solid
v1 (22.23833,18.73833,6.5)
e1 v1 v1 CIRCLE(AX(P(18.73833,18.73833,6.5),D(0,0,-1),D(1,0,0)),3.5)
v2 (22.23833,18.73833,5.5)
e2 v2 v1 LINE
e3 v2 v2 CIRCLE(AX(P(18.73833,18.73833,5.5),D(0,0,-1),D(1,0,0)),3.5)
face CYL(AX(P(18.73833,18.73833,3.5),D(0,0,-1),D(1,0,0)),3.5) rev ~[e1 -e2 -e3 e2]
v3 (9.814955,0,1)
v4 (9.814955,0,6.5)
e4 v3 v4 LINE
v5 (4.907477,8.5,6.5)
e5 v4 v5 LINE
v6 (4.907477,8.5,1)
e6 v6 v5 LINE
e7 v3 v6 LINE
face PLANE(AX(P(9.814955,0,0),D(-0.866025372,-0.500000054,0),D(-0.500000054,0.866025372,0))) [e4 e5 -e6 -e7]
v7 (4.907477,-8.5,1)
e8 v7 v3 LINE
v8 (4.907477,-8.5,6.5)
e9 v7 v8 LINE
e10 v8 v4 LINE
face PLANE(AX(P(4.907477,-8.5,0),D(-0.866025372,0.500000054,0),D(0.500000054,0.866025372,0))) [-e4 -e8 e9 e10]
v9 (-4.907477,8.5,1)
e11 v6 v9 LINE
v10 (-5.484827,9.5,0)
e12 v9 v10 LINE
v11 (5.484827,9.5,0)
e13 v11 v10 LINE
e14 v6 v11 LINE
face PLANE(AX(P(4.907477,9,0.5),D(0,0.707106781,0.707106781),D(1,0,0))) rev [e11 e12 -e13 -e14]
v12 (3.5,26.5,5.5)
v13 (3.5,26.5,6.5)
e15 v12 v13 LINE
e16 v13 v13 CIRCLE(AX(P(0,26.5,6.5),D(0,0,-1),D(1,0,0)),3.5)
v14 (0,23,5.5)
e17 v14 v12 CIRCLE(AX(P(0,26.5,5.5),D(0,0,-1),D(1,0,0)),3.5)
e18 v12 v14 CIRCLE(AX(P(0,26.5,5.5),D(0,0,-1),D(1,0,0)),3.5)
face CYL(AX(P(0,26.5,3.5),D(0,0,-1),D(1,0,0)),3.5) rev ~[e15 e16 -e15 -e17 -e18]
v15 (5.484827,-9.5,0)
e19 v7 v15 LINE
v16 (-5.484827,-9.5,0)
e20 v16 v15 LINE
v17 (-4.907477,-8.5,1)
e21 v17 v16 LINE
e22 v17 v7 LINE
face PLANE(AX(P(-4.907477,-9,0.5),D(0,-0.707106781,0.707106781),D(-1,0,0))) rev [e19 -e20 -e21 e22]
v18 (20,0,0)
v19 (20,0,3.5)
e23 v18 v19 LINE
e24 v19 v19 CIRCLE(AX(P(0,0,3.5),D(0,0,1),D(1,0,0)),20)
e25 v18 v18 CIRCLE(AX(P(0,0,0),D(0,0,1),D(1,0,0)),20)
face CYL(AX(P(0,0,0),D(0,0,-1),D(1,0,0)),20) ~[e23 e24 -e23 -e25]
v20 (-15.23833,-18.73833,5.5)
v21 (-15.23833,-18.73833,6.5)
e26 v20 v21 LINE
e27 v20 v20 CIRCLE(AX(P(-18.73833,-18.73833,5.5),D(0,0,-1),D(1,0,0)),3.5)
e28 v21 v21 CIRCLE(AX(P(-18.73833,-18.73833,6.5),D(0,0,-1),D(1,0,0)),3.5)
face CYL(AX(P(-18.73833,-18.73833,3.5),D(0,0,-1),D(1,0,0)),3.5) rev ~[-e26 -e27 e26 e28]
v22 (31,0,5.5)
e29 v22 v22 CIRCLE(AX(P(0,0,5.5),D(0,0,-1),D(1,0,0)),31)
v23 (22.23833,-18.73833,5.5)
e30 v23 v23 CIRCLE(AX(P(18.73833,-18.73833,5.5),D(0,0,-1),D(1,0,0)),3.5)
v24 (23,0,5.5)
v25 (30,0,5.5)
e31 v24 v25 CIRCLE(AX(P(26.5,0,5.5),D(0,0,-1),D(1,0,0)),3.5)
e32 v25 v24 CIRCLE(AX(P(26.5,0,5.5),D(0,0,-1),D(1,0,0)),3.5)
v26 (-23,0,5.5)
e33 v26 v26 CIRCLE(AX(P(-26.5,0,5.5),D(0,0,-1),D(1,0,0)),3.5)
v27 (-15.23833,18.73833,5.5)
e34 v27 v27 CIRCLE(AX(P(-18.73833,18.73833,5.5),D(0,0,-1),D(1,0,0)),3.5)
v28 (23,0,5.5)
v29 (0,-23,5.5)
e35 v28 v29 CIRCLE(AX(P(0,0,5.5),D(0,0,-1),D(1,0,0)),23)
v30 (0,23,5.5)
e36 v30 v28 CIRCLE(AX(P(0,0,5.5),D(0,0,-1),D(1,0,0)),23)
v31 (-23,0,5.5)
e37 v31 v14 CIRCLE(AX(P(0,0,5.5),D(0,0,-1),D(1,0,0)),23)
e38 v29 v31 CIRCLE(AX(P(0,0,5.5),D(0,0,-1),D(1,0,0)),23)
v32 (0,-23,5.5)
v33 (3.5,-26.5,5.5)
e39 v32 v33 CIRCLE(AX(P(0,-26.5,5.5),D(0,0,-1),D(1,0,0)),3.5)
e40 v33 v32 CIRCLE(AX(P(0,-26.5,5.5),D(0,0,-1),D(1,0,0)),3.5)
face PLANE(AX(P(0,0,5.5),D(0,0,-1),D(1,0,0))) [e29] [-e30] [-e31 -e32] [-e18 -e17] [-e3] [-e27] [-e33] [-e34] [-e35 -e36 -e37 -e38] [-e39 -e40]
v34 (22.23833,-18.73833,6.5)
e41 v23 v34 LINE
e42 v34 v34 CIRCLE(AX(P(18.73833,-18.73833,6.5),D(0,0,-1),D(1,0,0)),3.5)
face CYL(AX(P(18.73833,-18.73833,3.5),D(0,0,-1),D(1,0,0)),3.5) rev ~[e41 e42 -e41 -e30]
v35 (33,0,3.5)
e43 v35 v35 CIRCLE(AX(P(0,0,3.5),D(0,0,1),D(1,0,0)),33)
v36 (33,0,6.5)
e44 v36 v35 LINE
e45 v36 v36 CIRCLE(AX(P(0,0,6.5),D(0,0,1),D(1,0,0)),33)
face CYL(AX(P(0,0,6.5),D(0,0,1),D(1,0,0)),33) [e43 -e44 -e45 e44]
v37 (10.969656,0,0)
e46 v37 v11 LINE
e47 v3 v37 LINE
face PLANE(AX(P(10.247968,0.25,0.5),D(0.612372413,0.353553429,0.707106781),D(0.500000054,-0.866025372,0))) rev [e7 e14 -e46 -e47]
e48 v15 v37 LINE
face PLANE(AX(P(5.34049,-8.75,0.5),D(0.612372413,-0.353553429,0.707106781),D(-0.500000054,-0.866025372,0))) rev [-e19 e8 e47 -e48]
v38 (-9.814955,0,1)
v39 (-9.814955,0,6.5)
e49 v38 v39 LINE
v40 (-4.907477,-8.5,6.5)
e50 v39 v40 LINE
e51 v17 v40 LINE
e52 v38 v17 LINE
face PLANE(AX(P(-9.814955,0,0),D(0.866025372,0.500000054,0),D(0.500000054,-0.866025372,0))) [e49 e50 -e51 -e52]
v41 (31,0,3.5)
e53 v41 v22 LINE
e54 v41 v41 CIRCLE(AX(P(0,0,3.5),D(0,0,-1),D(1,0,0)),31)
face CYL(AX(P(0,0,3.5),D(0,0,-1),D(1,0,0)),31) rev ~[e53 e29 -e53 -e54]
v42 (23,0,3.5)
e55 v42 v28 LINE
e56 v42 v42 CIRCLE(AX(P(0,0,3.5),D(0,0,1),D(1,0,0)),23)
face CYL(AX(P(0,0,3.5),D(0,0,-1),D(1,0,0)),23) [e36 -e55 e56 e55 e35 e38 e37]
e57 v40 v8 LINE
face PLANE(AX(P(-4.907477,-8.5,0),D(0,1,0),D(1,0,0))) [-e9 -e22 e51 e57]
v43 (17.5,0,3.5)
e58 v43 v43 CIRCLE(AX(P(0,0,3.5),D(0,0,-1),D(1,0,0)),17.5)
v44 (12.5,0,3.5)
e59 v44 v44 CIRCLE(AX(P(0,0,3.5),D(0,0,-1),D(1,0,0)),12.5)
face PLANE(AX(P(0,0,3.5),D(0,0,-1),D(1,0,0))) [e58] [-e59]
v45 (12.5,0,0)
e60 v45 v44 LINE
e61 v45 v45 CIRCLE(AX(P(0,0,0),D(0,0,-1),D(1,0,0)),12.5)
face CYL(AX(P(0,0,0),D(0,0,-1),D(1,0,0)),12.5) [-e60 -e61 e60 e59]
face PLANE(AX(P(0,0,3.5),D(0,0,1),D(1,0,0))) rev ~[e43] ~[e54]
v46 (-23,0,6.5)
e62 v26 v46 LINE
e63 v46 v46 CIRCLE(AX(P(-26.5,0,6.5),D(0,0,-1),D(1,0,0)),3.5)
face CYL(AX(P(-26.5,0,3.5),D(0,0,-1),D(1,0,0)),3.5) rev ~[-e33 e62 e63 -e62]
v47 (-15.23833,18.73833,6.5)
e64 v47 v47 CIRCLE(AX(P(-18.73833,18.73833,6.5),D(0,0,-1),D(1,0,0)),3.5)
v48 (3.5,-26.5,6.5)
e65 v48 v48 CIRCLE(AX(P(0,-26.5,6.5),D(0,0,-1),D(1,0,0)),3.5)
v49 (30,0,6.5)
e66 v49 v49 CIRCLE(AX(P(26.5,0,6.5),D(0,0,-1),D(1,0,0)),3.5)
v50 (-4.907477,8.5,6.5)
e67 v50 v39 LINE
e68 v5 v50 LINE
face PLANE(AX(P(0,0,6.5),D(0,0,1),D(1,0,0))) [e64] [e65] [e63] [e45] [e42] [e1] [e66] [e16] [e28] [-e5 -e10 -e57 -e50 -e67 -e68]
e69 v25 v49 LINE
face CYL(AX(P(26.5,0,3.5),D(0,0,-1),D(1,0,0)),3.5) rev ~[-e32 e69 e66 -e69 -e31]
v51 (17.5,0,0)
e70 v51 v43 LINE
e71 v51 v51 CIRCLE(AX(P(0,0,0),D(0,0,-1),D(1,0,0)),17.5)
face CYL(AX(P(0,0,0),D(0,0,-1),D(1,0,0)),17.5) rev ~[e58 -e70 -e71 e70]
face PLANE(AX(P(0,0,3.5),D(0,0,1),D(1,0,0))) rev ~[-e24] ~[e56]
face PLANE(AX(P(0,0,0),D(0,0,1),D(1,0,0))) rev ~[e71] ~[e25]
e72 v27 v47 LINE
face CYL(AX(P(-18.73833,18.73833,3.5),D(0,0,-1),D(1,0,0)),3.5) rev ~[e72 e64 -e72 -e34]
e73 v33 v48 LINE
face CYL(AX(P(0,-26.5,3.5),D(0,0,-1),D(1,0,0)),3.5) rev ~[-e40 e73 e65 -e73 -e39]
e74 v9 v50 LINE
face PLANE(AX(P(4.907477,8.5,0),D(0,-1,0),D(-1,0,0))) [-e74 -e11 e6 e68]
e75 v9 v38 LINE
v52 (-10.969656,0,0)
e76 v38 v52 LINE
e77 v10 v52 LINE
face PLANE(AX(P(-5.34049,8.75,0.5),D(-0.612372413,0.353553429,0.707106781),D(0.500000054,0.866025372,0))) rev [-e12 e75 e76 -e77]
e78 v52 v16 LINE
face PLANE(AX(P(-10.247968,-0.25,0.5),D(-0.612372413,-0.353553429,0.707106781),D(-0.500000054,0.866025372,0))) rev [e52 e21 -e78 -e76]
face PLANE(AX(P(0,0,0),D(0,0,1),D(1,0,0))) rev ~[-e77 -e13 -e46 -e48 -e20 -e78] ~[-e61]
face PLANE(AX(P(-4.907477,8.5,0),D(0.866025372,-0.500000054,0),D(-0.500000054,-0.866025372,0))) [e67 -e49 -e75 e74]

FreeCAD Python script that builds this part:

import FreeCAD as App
import Part
import Sketcher
from FreeCAD import Vector
Q = App.Units.Quantity


def edges_at(feature, points):
    """Names of the edges that pass closest to the given points."""
    edges = feature.Shape.Edges
    near = lambda p: min(range(len(edges)), key=lambda i: edges[i].distToShape(Part.Vertex(*p))[0])
    return sorted({f"Edge{near(p) + 1}" for p in points})

doc = App.newDocument("Part")
body = doc.addObject("PartDesign::Body", "Body")

# Sketch on XY plane
sketch1 = doc.addObject("Sketcher::SketchObject", "Sketch")
body.addObject(sketch1)
sketch1.AttachmentSupport = (doc.XY_Plane, [""])
sketch1.MapMode = "FlatFace"
sketch1.addGeometry([
    Part.Circle(Vector(0, 0, 0), Vector(0, 0, 1), 20),  # 0
    Part.LineSegment(Vector(-5, 8, 0), Vector(5, 8, 0)),  # 1
    Part.LineSegment(Vector(5, 8, 0), Vector(10, 0, 0)),  # 2
    Part.LineSegment(Vector(10, 0, 0), Vector(5, -8, 0)),  # 3
    Part.LineSegment(Vector(5, -8, 0), Vector(-5, -8, 0)),  # 4
    Part.LineSegment(Vector(-5, -8, 0), Vector(-10, 0, 0)),  # 5
    Part.LineSegment(Vector(-10, 0, 0), Vector(-5, 8, 0)),  # 6
], False)
sketch1.addConstraint([
    Sketcher.Constraint("Coincident", 1, 2, 2, 1),
    Sketcher.Constraint("Coincident", 2, 2, 3, 1),
    Sketcher.Constraint("Coincident", 3, 2, 4, 1),
    Sketcher.Constraint("Coincident", 4, 2, 5, 1),
    Sketcher.Constraint("Coincident", 5, 2, 6, 1),
    Sketcher.Constraint("Coincident", 6, 2, 1, 1),
    Sketcher.Constraint("Horizontal", 1),
    Sketcher.Constraint("Horizontal", 4),
    Sketcher.Constraint("Coincident", 0, 3, -1, 1),
    Sketcher.Constraint("Symmetric", 1, 2, 4, 2, -1, 1),
    Sketcher.Constraint("Symmetric", 2, 2, 5, 2, -1, 1),
    Sketcher.Constraint("PointOnObject", 2, 2, -1),
    Sketcher.Constraint("Parallel", 3, 6),
    Sketcher.Constraint("Vertical", 1, 2, 3, 2),
    Sketcher.Constraint("Diameter", 0, Q("40 mm")),
    Sketcher.Constraint("Angle", 2, Q("-59.999996 deg")),
    Sketcher.Constraint("DistanceY", 3, 2, 1, 2, Q("17 mm")),
    Sketcher.Constraint("DistanceX", 1, 1, 1, 2, Q("9.814954 mm")),
])
pad1 = doc.addObject("PartDesign::Pad", "Pad")
body.addObject(pad1)
pad1.Profile = sketch1
pad1.Length = 6.5

# Sketch on XY plane
sketch2 = doc.addObject("Sketcher::SketchObject", "Sketch001")
body.addObject(sketch2)
sketch2.AttachmentSupport = (doc.XY_Plane, [""])
sketch2.MapMode = "FlatFace"
sketch2.AttachmentOffset = App.Placement(Vector(0, 0, 6.5), App.Rotation())
sketch2.addGeometry([
    Part.Circle(Vector(0, 0, 0), Vector(0, 0, 1), 33),
    Part.Circle(Vector(0, 0, 0), Vector(0, 0, 1), 20),
], False)
sketch2.addConstraint([
    Sketcher.Constraint("Coincident", 0, 3, -1, 1),
    Sketcher.Constraint("Coincident", 1, 3, -1, 1),
    Sketcher.Constraint("Diameter", 0, Q("66 mm")),
    Sketcher.Constraint("Diameter", 1, Q("40 mm")),
])
pad2 = doc.addObject("PartDesign::Pad", "Pad001")
body.addObject(pad2)
pad2.Profile = sketch2
pad2.Length = 3
pad2.Reversed = True

# Sketch on XY plane
sketch3 = doc.addObject("Sketcher::SketchObject", "Sketch002")
body.addObject(sketch3)
sketch3.AttachmentSupport = (doc.XY_Plane, [""])
sketch3.MapMode = "FlatFace"
sketch3.AttachmentOffset = App.Placement(Vector(0, 0, 3.5), App.Rotation())
sketch3.addGeometry([
    Part.Circle(Vector(0, -26.5, 0), Vector(0, 0, 1), 3.5),  # 0
    Part.Circle(Vector(18.7, -18.7, 0), Vector(0, 0, 1), 3.5),  # 1
    Part.Circle(Vector(26.5, 0, 0), Vector(0, 0, 1), 3.5),  # 2
    Part.Circle(Vector(18.7, 18.7, 0), Vector(0, 0, 1), 3.5),  # 3
    Part.Circle(Vector(0, 26.5, 0), Vector(0, 0, 1), 3.5),  # 4
    Part.Circle(Vector(-18.7, 18.7, 0), Vector(0, 0, 1), 3.5),  # 5
    Part.Circle(Vector(-26.5, 0, 0), Vector(0, 0, 1), 3.5),  # 6
    Part.Circle(Vector(-18.7, -18.7, 0), Vector(0, 0, 1), 3.5),  # 7
], False)
sketch3.addConstraint([
    Sketcher.Constraint("Equal", 0, 1),
    Sketcher.Constraint("Equal", 1, 2),
    Sketcher.Constraint("Equal", 2, 3),
    Sketcher.Constraint("Equal", 3, 4),
    Sketcher.Constraint("Equal", 4, 5),
    Sketcher.Constraint("Equal", 5, 6),
    Sketcher.Constraint("Equal", 6, 7),
    Sketcher.Constraint("Symmetric", 0, 3, 4, 3, -1, 1),
    Sketcher.Constraint("Symmetric", 1, 3, 5, 3, -1, 1),
    Sketcher.Constraint("Symmetric", 2, 3, 6, 3, -1, 1),
    Sketcher.Constraint("Symmetric", 3, 3, 7, 3, -1, 1),
    Sketcher.Constraint("Symmetric", 3, 3, 5, 3, -2),
    Sketcher.Constraint("PointOnObject", 0, 3, -2),
    Sketcher.Constraint("PointOnObject", 2, 3, -1),
    Sketcher.Constraint("Diameter", 0, Q("7 mm")),
    Sketcher.Constraint("DistanceY", 0, 3, 4, 3, Q("53 mm")),
    Sketcher.Constraint("DistanceX", -1, 1, 2, 3, Q("26.5 mm")),
    Sketcher.Constraint("DistanceX", -1, 1, 1, 3, Q("18.73833 mm")),
    Sketcher.Constraint("DistanceY", 1, 3, -1, 1, Q("18.73833 mm")),
])
pocket1 = doc.addObject("PartDesign::Pocket", "Pocket")
body.addObject(pocket1)
pocket1.Profile = sketch3
pocket1.Length = 5
pocket1.Reversed = True

# Sketch on XY plane
sketch4 = doc.addObject("Sketcher::SketchObject", "Sketch003")
body.addObject(sketch4)
sketch4.AttachmentSupport = (doc.XY_Plane, [""])
sketch4.MapMode = "FlatFace"
sketch4.AttachmentOffset = App.Placement(Vector(0, 0, 3.5), App.Rotation())
sketch4.addGeometry([
    Part.Circle(Vector(0, 0, 0), Vector(0, 0, 1), 31),
    Part.Circle(Vector(0, 0, 0), Vector(0, 0, 1), 23),
], False)
sketch4.addConstraint([
    Sketcher.Constraint("Coincident", 0, 3, -1, 1),
    Sketcher.Constraint("Coincident", 1, 3, -1, 1),
    Sketcher.Constraint("Diameter", 0, Q("62 mm")),
    Sketcher.Constraint("Diameter", 1, Q("46 mm")),
])
pocket2 = doc.addObject("PartDesign::Pocket", "Pocket001")
body.addObject(pocket2)
pocket2.Profile = sketch4
pocket2.Length = 2
pocket2.Reversed = True

# Sketch on XY plane
sketch5 = doc.addObject("Sketcher::SketchObject", "Sketch004")
body.addObject(sketch5)
sketch5.AttachmentSupport = (doc.XY_Plane, [""])
sketch5.MapMode = "FlatFace"
sketch5.addGeometry([
    Part.Circle(Vector(0, 0, 0), Vector(0, 0, 1), 18),
    Part.Circle(Vector(0, 0, 0), Vector(0, 0, 1), 12),
], False)
sketch5.addConstraint([
    Sketcher.Constraint("Coincident", 0, 3, -1, 1),
    Sketcher.Constraint("Coincident", 1, 3, -1, 1),
    Sketcher.Constraint("Diameter", 0, Q("35 mm")),
    Sketcher.Constraint("Diameter", 1, Q("25 mm")),
])
pocket3 = doc.addObject("PartDesign::Pocket", "Pocket002")
body.addObject(pocket3)
pocket3.Profile = sketch5
pocket3.Length = 3.5
pocket3.Reversed = True
doc.recompute()

chamfer = doc.addObject("PartDesign::Chamfer", "Chamfer")
body.addObject(chamfer)
chamfer.Base = (pocket3, edges_at(pocket3, [
    (7.361, 4.25, 0),
    (0, 8.5, 0),
    (-7.361, 4.25, 0),
    (-7.361, -4.25, 0),
    (0, -8.5, 0),
    (7.361, -4.25, 0),
]))
chamfer.Size = 1

doc.recompute()
